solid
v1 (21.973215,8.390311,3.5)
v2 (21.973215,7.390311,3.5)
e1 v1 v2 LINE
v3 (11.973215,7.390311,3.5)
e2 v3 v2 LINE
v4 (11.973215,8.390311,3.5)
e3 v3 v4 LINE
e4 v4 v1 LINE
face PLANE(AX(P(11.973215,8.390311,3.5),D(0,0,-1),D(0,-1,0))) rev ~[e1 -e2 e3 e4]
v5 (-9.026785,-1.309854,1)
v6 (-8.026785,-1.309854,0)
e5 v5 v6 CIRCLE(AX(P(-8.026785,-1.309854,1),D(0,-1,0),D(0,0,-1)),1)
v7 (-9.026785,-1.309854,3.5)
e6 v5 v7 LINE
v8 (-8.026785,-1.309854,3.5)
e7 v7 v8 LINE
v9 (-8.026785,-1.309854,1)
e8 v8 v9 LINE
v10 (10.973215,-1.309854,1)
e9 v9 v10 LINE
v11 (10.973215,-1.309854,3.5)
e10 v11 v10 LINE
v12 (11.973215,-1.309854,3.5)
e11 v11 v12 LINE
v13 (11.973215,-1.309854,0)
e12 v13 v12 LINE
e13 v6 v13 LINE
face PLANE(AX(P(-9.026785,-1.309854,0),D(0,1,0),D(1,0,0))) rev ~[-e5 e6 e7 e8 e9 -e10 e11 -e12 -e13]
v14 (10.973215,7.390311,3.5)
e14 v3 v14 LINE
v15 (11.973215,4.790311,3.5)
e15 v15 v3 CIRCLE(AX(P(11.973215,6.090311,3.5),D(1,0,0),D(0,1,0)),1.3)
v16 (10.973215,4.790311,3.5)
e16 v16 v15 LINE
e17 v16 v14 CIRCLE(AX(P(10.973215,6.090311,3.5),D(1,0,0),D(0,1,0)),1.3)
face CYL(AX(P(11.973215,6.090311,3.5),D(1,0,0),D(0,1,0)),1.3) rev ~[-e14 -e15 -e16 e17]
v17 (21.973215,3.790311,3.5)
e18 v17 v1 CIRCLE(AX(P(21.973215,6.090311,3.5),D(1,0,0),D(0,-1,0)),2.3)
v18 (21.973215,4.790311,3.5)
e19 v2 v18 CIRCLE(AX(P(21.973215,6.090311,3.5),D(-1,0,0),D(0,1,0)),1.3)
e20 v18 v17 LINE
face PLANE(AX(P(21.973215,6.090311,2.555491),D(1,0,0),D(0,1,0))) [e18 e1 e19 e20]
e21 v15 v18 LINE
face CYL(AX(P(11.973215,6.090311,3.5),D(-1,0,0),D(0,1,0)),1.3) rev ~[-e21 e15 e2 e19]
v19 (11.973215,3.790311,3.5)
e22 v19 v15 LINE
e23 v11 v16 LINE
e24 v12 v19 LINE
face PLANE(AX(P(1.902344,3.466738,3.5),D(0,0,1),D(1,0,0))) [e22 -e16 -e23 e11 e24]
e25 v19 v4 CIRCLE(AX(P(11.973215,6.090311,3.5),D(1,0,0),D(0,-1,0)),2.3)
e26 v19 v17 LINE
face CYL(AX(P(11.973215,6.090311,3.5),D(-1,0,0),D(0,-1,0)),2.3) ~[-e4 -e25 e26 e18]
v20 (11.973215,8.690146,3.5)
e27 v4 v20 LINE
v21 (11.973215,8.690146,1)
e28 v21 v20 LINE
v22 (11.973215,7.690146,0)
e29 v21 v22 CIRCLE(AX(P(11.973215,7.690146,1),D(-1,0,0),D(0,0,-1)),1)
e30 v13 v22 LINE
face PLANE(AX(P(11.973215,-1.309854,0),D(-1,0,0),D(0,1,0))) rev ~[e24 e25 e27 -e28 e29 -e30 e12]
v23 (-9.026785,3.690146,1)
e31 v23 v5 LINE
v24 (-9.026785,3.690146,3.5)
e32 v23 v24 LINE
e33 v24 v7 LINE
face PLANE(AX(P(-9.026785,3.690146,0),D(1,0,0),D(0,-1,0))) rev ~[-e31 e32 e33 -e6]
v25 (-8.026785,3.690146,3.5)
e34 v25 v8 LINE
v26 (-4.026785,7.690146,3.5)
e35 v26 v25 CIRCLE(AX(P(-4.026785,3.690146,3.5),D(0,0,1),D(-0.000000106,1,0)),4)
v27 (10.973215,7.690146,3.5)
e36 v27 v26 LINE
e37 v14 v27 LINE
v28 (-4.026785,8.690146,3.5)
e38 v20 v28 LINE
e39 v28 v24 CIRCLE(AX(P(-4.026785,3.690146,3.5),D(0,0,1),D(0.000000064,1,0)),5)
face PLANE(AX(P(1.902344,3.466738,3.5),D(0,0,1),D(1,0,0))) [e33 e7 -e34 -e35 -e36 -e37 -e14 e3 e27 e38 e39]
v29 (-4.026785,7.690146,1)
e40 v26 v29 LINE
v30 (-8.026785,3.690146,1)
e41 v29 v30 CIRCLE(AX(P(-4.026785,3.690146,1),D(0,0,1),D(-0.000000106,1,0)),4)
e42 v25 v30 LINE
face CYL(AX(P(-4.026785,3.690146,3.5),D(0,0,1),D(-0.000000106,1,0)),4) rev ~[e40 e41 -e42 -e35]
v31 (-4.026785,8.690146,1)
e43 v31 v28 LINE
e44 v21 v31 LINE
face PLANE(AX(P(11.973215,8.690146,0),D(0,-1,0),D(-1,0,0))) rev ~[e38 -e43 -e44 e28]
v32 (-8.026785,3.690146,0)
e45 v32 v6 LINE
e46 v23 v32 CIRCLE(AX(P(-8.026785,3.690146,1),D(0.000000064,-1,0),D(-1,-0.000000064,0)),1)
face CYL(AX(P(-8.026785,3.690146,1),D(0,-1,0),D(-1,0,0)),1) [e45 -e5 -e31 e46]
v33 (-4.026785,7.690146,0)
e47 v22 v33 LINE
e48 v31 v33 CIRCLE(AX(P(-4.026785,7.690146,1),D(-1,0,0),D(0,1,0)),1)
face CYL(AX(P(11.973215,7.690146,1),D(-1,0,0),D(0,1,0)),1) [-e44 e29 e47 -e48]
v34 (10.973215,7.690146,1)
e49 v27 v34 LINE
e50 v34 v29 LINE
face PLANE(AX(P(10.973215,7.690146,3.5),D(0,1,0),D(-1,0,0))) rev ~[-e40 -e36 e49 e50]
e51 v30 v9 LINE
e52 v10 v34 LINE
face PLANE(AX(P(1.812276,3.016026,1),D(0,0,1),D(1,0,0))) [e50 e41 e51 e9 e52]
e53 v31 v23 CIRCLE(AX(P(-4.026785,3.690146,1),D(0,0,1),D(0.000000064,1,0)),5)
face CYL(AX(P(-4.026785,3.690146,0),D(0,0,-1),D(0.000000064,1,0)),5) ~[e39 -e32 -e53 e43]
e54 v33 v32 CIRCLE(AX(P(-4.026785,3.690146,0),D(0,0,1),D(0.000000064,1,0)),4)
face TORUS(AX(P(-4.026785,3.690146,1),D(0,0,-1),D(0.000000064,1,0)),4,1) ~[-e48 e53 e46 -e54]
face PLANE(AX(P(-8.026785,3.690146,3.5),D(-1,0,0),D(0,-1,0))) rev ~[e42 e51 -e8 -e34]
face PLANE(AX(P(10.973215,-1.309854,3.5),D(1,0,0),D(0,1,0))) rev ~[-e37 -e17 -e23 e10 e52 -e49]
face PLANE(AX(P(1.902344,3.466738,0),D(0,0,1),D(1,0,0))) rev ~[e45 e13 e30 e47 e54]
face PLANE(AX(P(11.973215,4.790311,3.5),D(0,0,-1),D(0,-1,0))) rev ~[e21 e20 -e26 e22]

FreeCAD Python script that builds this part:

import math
import FreeCAD as App
import Part
import Sketcher
from FreeCAD import Vector
Q = App.Units.Quantity


def edges_at(feature, points):
    """Names of the edges that pass closest to the given points."""
    edges = feature.Shape.Edges
    near = lambda p: min(range(len(edges)), key=lambda i: edges[i].distToShape(Part.Vertex(*p))[0])
    return sorted({f"Edge{near(p) + 1}" for p in points})

doc = App.newDocument("Part")
params = doc.addObject("Spreadsheet::Sheet", "Params")
for row, (alias, value) in enumerate([
    ("sketch1_radius", "5 mm"),
    ("sketch1_width", "16 mm"),
    ("sketch1_height", "5 mm"),
    ("pad1_length", "3.5 mm"),
    ("sketch2_radius", "4 mm"),
    ("sketch2_width", "19 mm"),
    ("sketch2_height", "5 mm"),
    ("pocket1_length", "2.5 mm"),
    ("fillet_radius", "1 mm"),
    ("sketch3_diameter", "2.6 mm"),
    ("pocket2_length", "7.7 mm"),
    ("sketch4_radius", "1.3 mm"),
    ("sketch4_radius2", "2.3 mm"),
    ("pad2_length", "10 mm"),
], start=1):
    params.set(f"A{row}", alias)
    params.set(f"B{row}", "=" + value)
    params.setAlias(f"B{row}", alias)

body = doc.addObject("PartDesign::Body", "Body")

# Sketch on XY plane
sketch1 = body.newObject("Sketcher::SketchObject", "Sketch")
sketch1.AttachmentSupport = (doc.getObject("XY_Plane"), [""])
sketch1.MapMode = "FlatFace"
sketch1.addGeometry(Part.LineSegment(Vector(12, 8.7, 0), Vector(-4, 8.7, 0)), False)
sketch1.addGeometry(Part.ArcOfCircle(Part.Circle(Vector(-4, 3.7, 0), Vector(0, 0, 1), 5), math.radians(90), math.radians(180)), False)
sketch1.addGeometry(Part.LineSegment(Vector(-9, 3.7, 0), Vector(-9, -1.3, 0)), False)
sketch1.addGeometry(Part.LineSegment(Vector(-9, -1.3, 0), Vector(12, -1.3, 0)), False)
sketch1.addGeometry(Part.LineSegment(Vector(12, -1.3, 0), Vector(12, 8.7, 0)), False)
sketch1.addConstraint(Sketcher.Constraint("Tangent", 0, 2, 1, 1))
sketch1.addConstraint(Sketcher.Constraint("Tangent", 1, 2, 2, 1))
sketch1.addConstraint(Sketcher.Constraint("Coincident", 2, 2, 3, 1))
sketch1.addConstraint(Sketcher.Constraint("Coincident", 3, 2, 4, 1))
sketch1.addConstraint(Sketcher.Constraint("Coincident", 4, 2, 0, 1))
sketch1.addConstraint(Sketcher.Constraint("Horizontal", 0))
sketch1.addConstraint(Sketcher.Constraint("Vertical", 2))
sketch1.addConstraint(Sketcher.Constraint("Horizontal", 3))
sketch1.addConstraint(Sketcher.Constraint("Vertical", 4))
sketch1.addConstraint(Sketcher.Constraint("Radius", 1, Q("5 mm")))
sketch1.addConstraint(Sketcher.Constraint("DistanceX", 0, 2, 0, 1, Q("16 mm")))
sketch1.addConstraint(Sketcher.Constraint("DistanceY", 2, 2, 2, 1, Q("5 mm")))
sketch1.addConstraint(Sketcher.Constraint("DistanceX", 1, 3, -1, 1, Q("4.026785 mm")))
sketch1.addConstraint(Sketcher.Constraint("DistanceY", -1, 1, 1, 3, Q("3.690146 mm")))
sketch1.setExpression("Constraints[9]", "Params.sketch1_radius")
sketch1.setExpression("Constraints[10]", "Params.sketch1_width")
sketch1.setExpression("Constraints[11]", "Params.sketch1_height")
pad1 = body.newObject("PartDesign::Pad", "Pad")
pad1.Profile = sketch1
pad1.setExpression("Length", "Params.pad1_length")

# Sketch on XY plane
sketch2 = body.newObject("Sketcher::SketchObject", "Sketch001")
sketch2.AttachmentSupport = (doc.getObject("XY_Plane"), [""])
sketch2.MapMode = "FlatFace"
sketch2.AttachmentOffset = App.Placement(Vector(0, 0, 3.5), App.Rotation())
sketch2.addGeometry(Part.ArcOfCircle(Part.Circle(Vector(-4, 3.7, 0), Vector(0, 0, 1), 4), math.radians(90), math.radians(180)), False)
sketch2.addGeometry(Part.LineSegment(Vector(-8, 3.7, 0), Vector(-8, -1.3, 0)), False)
sketch2.addGeometry(Part.LineSegment(Vector(-8, -1.3, 0), Vector(11, -1.3, 0)), False)
sketch2.addGeometry(Part.LineSegment(Vector(11, -1.3, 0), Vector(11, 7.7, 0)), False)
sketch2.addGeometry(Part.LineSegment(Vector(11, 7.7, 0), Vector(-4, 7.7, 0)), False)
sketch2.addConstraint(Sketcher.Constraint("Tangent", 0, 2, 1, 1))
sketch2.addConstraint(Sketcher.Constraint("Coincident", 1, 2, 2, 1))
sketch2.addConstraint(Sketcher.Constraint("Coincident", 2, 2, 3, 1))
sketch2.addConstraint(Sketcher.Constraint("Coincident", 3, 2, 4, 1))
sketch2.addConstraint(Sketcher.Constraint("Tangent", 4, 2, 0, 1))
sketch2.addConstraint(Sketcher.Constraint("Vertical", 1))
sketch2.addConstraint(Sketcher.Constraint("Horizontal", 2))
sketch2.addConstraint(Sketcher.Constraint("Vertical", 3))
sketch2.addConstraint(Sketcher.Constraint("Horizontal", 4))
sketch2.addConstraint(Sketcher.Constraint("Radius", 0, Q("4 mm")))
sketch2.addConstraint(Sketcher.Constraint("DistanceX", 2, 1, 2, 2, Q("19 mm")))
sketch2.addConstraint(Sketcher.Constraint("DistanceY", 1, 2, 1, 1, Q("5 mm")))
sketch2.addConstraint(Sketcher.Constraint("DistanceX", 0, 3, -1, 1, Q("4.026785 mm")))
sketch2.addConstraint(Sketcher.Constraint("DistanceY", -1, 1, 0, 3, Q("3.690146 mm")))
sketch2.setExpression("Constraints[9]", "Params.sketch2_radius")
sketch2.setExpression("Constraints[10]", "Params.sketch2_width")
sketch2.setExpression("Constraints[11]", "Params.sketch2_height")
pocket1 = body.newObject("PartDesign::Pocket", "Pocket")
pocket1.Profile = sketch2
pocket1.setExpression("Length", "Params.pocket1_length")
doc.recompute()

fillet = body.newObject("PartDesign::Fillet", "Fillet")
fillet.Base = (pocket1, edges_at(pocket1, [(3.973, 8.69, 0), (-7.562, 7.226, 0), (-9.027, 1.19, 0)]))
fillet.setExpression("Radius", "Params.fillet_radius")

# Sketch on YZ plane
sketch3 = body.newObject("Sketcher::SketchObject", "Sketch002")
sketch3.AttachmentSupport = (doc.getObject("YZ_Plane"), [""])
sketch3.MapMode = "FlatFace"
sketch3.AttachmentOffset = App.Placement(Vector(0, 0, 11.973215), App.Rotation())
sketch3.addGeometry(Part.Circle(Vector(6.1, 3.5, 0), Vector(0, 0, 1), 1.3), False)
sketch3.addConstraint(Sketcher.Constraint("Diameter", 0, Q("2.6 mm")))
sketch3.addConstraint(Sketcher.Constraint("DistanceY", -1, 1, 0, 3, Q("3.5 mm")))
sketch3.addConstraint(Sketcher.Constraint("DistanceX", -1, 1, 0, 3, Q("6.090311 mm")))
sketch3.setExpression("Constraints[0]", "Params.sketch3_diameter")
pocket2 = body.newObject("PartDesign::Pocket", "Pocket001")
pocket2.Profile = sketch3
pocket2.setExpression("Length", "Params.pocket2_length")

# Sketch on YZ plane
sketch4 = body.newObject("Sketcher::SketchObject", "Sketch003")
sketch4.AttachmentSupport = (doc.getObject("YZ_Plane"), [""])
sketch4.MapMode = "FlatFace"
sketch4.AttachmentOffset = App.Placement(Vector(0, 0, 11.973215), App.Rotation())
sketch4.addGeometry(Part.LineSegment(Vector(8.4, 3.5, 0), Vector(7.4, 3.5, 0)), False)
sketch4.addGeometry(Part.ArcOfCircle(Part.Circle(Vector(6.1, 3.5, 0), Vector(0, 0, 1), 1.3), math.radians(180), math.radians(360)), False)
sketch4.addGeometry(Part.LineSegment(Vector(4.8, 3.5, 0), Vector(3.8, 3.5, 0)), False)
sketch4.addGeometry(Part.ArcOfCircle(Part.Circle(Vector(6.1, 3.5, 0), Vector(0, 0, 1), 2.3), math.radians(180), math.radians(360)), False)
sketch4.addConstraint(Sketcher.Constraint("Coincident", 0, 2, 1, 2))
sketch4.addConstraint(Sketcher.Constraint("Coincident", 1, 1, 2, 1))
sketch4.addConstraint(Sketcher.Constraint("Coincident", 2, 2, 3, 1))
sketch4.addConstraint(Sketcher.Constraint("Coincident", 3, 2, 0, 1))
sketch4.addConstraint(Sketcher.Constraint("Horizontal", 0))
sketch4.addConstraint(Sketcher.Constraint("Horizontal", 2))
sketch4.addConstraint(Sketcher.Constraint("Coincident", 3, 3, 1, 3))
sketch4.addConstraint(Sketcher.Constraint("Horizontal", 3, 3, 0, 2))
sketch4.addConstraint(Sketcher.Constraint("Horizontal", 0, 2, 1, 1))
sketch4.addConstraint(Sketcher.Constraint("Radius", 1, Q("1.3 mm")))
sketch4.addConstraint(Sketcher.Constraint("Radius", 3, Q("2.3 mm")))
sketch4.addConstraint(Sketcher.Constraint("DistanceY", -1, 1, 1, 3, Q("3.5 mm")))
sketch4.addConstraint(Sketcher.Constraint("DistanceX", -1, 1, 1, 3, Q("6.090311 mm")))
sketch4.setExpression("Constraints[9]", "Params.sketch4_radius")
sketch4.setExpression("Constraints[10]", "Params.sketch4_radius2")
pad2 = body.newObject("PartDesign::Pad", "Pad001")
pad2.Profile = sketch4
pad2.setExpression("Length", "Params.pad2_length")

doc.recompute()
